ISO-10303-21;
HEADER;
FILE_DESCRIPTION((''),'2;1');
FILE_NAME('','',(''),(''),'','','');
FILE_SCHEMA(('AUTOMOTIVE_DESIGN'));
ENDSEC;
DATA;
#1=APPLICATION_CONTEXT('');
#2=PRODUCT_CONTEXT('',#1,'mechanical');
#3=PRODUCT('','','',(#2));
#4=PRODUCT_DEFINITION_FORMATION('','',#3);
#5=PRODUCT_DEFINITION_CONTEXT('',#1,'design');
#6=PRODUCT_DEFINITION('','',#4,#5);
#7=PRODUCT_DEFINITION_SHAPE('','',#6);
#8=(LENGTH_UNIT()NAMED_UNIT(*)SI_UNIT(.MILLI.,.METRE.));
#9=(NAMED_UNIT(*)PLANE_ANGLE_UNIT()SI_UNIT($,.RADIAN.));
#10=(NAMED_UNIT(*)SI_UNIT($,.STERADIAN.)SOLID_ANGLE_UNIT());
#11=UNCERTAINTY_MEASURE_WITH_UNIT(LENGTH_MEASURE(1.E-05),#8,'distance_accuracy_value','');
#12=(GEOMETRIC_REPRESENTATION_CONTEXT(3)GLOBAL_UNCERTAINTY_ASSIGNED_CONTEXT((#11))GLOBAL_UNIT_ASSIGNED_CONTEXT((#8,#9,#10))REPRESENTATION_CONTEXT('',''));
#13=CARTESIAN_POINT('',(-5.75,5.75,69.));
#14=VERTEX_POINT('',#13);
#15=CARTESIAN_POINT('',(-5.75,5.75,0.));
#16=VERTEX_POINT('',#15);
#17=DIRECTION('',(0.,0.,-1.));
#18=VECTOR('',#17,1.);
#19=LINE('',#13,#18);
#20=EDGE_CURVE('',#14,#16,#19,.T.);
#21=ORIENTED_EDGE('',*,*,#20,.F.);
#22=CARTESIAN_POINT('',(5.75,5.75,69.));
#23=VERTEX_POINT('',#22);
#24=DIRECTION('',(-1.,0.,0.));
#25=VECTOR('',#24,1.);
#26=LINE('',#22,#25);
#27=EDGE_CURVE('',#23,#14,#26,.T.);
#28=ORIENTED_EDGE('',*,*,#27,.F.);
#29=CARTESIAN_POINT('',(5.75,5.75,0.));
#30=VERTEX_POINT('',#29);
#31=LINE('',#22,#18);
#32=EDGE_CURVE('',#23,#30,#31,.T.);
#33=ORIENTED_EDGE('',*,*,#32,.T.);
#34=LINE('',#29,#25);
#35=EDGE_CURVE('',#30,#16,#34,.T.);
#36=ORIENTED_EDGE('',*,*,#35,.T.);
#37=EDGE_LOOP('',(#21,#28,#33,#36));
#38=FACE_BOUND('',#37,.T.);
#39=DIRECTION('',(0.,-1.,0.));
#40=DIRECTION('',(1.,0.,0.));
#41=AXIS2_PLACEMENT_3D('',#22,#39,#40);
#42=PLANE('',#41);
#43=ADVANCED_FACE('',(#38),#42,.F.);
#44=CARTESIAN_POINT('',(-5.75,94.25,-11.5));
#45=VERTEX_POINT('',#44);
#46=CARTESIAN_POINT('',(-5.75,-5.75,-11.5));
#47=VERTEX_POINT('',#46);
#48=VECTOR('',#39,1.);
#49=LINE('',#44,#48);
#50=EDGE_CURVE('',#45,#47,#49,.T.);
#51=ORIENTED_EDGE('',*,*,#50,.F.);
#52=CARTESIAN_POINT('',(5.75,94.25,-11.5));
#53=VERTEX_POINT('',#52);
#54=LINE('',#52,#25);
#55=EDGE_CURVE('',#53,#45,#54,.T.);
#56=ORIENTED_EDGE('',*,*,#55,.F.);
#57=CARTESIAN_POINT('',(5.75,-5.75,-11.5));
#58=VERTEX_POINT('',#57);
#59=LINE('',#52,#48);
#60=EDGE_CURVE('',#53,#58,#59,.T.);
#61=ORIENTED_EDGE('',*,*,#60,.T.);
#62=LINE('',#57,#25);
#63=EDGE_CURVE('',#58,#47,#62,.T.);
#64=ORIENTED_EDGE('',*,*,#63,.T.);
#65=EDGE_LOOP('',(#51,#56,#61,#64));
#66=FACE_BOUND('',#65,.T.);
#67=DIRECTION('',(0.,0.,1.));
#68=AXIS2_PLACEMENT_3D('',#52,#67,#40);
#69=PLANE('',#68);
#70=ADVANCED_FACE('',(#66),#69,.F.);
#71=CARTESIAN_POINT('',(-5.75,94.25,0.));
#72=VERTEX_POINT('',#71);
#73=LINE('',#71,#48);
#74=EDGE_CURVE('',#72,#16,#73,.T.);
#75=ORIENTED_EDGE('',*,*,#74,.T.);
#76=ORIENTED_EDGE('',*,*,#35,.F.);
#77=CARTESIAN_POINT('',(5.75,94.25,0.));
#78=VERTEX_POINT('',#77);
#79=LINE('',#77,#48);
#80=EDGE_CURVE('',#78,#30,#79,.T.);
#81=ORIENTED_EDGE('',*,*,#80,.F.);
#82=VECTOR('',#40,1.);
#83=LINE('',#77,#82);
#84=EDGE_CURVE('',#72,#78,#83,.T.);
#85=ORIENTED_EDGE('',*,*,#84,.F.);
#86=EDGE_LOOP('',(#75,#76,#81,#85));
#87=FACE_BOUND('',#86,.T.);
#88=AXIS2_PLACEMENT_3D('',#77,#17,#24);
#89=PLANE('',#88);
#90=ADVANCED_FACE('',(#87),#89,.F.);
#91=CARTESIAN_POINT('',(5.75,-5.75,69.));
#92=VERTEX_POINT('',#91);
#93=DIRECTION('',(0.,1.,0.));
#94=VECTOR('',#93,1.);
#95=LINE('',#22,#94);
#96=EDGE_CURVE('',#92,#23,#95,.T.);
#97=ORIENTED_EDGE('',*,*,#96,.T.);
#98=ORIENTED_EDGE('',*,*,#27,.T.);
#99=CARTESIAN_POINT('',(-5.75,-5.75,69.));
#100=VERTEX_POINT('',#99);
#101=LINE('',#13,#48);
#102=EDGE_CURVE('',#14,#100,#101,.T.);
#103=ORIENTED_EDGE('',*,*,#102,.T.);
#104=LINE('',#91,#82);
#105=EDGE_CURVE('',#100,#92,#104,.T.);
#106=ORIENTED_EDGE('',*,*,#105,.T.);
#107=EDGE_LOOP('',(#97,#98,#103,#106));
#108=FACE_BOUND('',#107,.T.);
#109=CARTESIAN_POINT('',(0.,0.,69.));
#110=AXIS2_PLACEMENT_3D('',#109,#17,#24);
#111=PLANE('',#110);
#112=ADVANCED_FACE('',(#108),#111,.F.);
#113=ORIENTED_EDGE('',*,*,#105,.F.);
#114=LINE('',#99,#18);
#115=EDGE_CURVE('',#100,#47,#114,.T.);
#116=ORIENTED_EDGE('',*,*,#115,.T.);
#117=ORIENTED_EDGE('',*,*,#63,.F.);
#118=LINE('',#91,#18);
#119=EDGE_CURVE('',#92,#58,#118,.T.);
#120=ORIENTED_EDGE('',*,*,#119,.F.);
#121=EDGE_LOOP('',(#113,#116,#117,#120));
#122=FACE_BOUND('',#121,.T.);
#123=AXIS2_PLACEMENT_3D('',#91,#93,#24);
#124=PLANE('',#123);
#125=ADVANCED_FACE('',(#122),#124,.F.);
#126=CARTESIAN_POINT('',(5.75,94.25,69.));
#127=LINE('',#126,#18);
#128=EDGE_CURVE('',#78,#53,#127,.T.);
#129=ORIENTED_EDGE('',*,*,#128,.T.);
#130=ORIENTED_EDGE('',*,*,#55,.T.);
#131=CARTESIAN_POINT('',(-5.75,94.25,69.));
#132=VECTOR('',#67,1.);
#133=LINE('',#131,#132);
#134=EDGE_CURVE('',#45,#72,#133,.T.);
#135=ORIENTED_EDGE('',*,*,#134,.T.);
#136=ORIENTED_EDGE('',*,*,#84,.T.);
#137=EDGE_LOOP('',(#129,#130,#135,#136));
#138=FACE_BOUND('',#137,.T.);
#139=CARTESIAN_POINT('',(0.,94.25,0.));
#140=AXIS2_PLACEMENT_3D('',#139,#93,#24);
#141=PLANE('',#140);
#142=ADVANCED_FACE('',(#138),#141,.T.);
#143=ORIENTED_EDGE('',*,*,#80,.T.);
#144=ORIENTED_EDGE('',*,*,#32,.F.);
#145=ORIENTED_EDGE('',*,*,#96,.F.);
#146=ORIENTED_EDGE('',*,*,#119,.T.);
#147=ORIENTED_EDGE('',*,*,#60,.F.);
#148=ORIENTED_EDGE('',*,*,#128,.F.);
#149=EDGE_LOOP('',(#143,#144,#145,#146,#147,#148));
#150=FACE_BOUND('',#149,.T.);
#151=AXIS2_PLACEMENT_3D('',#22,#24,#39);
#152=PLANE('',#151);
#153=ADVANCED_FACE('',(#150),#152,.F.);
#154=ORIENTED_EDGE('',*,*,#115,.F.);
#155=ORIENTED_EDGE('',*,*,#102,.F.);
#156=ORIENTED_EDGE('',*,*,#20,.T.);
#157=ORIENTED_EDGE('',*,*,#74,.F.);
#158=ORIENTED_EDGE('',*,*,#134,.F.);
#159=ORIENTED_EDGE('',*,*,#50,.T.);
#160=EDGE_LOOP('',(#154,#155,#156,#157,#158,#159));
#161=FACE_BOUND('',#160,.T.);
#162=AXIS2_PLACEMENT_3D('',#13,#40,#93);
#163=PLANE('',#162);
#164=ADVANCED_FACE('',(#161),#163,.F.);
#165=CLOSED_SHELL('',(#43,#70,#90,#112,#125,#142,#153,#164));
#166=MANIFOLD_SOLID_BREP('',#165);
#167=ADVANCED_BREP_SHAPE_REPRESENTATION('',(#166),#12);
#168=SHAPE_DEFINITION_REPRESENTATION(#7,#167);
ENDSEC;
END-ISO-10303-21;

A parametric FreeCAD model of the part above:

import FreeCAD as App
import Part
import Sketcher
from FreeCAD import Vector
Q = App.Units.Quantity

doc = App.newDocument("Part")
body = doc.addObject("PartDesign::Body", "Body")

sketch1 = body.newObject("Sketcher::SketchObject", "Sketch")
sketch1.AttachmentSupport = (doc.getObject("XY_Plane"), [""])
sketch1.MapMode = "FlatFace"
sketch1.addGeometry(Part.LineSegment(Vector(-6, 6, 0), Vector(-6, -6, 0)), False)
sketch1.addGeometry(Part.LineSegment(Vector(-6, -6, 0), Vector(6, -6, 0)), False)
sketch1.addGeometry(Part.LineSegment(Vector(6, -6, 0), Vector(6, 6, 0)), False)
sketch1.addGeometry(Part.LineSegment(Vector(6, 6, 0), Vector(-6, 6, 0)), False)
sketch1.addConstraint(Sketcher.Constraint("Coincident", 0, 2, 1, 1))
sketch1.addConstraint(Sketcher.Constraint("Coincident", 1, 2, 2, 1))
sketch1.addConstraint(Sketcher.Constraint("Coincident", 2, 2, 3, 1))
sketch1.addConstraint(Sketcher.Constraint("Coincident", 3, 2, 0, 1))
sketch1.addConstraint(Sketcher.Constraint("Vertical", 0))
sketch1.addConstraint(Sketcher.Constraint("Horizontal", 1))
sketch1.addConstraint(Sketcher.Constraint("Vertical", 2))
sketch1.addConstraint(Sketcher.Constraint("Horizontal", 3))
sketch1.addConstraint(Sketcher.Constraint("Symmetric", 0, 2, 2, 2, -1, 1))
sketch1.addConstraint(Sketcher.Constraint("Equal", 3, 0))
sketch1.addConstraint(Sketcher.Constraint("DistanceX", 1, 1, 1, 2, Q("11.5 mm")))
pad1 = body.newObject("PartDesign::Pad", "Pad")
pad1.Profile = sketch1
pad1.Length = 69

sketch2 = body.newObject("Sketcher::SketchObject", "Sketch001")
sketch2.AttachmentSupport = (doc.getObject("XZ_Plane"), [""])
sketch2.MapMode = "FlatFace"
sketch2.AttachmentOffset = App.Placement(Vector(0, 0, 5.75), App.Rotation())
sketch2.addGeometry(Part.LineSegment(Vector(-6, -12, 0), Vector(-6, 0, 0)), False)
sketch2.addGeometry(Part.LineSegment(Vector(-6, 0, 0), Vector(6, 0, 0)), False)
sketch2.addGeometry(Part.LineSegment(Vector(6, 0, 0), Vector(6, -12, 0)), False)
sketch2.addGeometry(Part.LineSegment(Vector(6, -12, 0), Vector(-6, -12, 0)), False)
sketch2.addConstraint(Sketcher.Constraint("Coincident", 0, 2, 1, 1))
sketch2.addConstraint(Sketcher.Constraint("Coincident", 1, 2, 2, 1))
sketch2.addConstraint(Sketcher.Constraint("Coincident", 2, 2, 3, 1))
sketch2.addConstraint(Sketcher.Constraint("Coincident", 3, 2, 0, 1))
sketch2.addConstraint(Sketcher.Constraint("Vertical", 0))
sketch2.addConstraint(Sketcher.Constraint("Horizontal", 1))
sketch2.addConstraint(Sketcher.Constraint("Vertical", 2))
sketch2.addConstraint(Sketcher.Constraint("Horizontal", 3))
sketch2.addConstraint(Sketcher.Constraint("Symmetric", 0, 2, 1, 2, -1, 1))
sketch2.addConstraint(Sketcher.Constraint("Equal", 3, 0))
sketch2.addConstraint(Sketcher.Constraint("DistanceX", 1, 1, 1, 2, Q("11.5 mm")))
pad2 = body.newObject("PartDesign::Pad", "Pad001")
pad2.Profile = sketch2
pad2.Length = 100
pad2.Reversed = True

doc.recompute()
